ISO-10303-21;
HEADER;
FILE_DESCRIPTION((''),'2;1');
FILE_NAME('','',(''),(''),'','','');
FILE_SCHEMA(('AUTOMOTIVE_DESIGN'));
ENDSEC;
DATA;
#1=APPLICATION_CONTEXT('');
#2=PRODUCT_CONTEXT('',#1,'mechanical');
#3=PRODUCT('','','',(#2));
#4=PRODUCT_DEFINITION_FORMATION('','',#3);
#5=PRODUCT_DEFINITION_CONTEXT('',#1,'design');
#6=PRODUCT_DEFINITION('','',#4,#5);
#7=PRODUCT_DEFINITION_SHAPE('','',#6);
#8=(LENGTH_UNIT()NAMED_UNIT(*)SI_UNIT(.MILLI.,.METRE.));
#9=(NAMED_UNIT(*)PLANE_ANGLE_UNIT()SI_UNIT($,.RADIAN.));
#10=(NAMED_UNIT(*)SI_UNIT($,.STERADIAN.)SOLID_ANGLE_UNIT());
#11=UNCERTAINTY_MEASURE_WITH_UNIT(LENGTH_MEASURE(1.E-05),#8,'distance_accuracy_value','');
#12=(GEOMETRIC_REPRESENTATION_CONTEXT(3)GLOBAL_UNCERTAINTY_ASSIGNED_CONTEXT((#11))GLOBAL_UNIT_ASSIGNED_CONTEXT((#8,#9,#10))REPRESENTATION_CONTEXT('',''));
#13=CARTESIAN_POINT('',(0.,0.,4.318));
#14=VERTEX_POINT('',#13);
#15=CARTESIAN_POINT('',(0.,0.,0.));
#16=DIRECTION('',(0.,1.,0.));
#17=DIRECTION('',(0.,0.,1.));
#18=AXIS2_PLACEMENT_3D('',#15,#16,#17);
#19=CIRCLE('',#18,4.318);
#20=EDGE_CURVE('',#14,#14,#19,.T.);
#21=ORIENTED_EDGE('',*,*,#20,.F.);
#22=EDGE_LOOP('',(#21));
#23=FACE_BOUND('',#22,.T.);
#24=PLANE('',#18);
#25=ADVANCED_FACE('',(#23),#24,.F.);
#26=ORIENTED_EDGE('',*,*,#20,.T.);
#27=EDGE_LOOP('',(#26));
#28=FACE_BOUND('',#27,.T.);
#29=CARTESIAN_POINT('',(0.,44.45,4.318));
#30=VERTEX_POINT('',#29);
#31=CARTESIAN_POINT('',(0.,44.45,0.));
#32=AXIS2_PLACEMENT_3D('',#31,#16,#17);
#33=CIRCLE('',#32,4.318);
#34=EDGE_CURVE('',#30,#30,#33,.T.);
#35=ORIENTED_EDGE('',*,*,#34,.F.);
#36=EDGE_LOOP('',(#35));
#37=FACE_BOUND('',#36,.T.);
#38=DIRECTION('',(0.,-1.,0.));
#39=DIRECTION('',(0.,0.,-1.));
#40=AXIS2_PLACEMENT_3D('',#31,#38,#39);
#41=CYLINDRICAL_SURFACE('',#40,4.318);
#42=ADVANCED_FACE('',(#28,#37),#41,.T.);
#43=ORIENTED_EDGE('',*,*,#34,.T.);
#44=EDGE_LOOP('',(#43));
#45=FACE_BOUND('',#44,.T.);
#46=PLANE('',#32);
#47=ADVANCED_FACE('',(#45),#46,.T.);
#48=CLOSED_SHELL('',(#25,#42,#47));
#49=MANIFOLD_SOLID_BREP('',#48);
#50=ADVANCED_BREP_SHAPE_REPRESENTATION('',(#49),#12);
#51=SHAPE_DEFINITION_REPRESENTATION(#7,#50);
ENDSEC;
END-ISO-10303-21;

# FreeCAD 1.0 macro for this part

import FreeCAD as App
import Part
import Sketcher
from FreeCAD import Vector
Q = App.Units.Quantity

doc = App.newDocument("Part")
body = doc.addObject("PartDesign::Body", "Body")

# Sketch on XZ plane
sketch1 = body.newObject("Sketcher::SketchObject", "Sketch")
sketch1.AttachmentSupport = (doc.getObject("XZ_Plane"), [""])
sketch1.MapMode = "FlatFace"
sketch1.addGeometry(Part.Circle(Vector(0, 0, 0), Vector(0, 0, 1), 4.3), False)
sketch1.addConstraint([
    Sketcher.Constraint("Coincident", 0, 3, -1, 1),
    Sketcher.Constraint("Diameter", 0, Q("0.34 in")),
])
pad1 = body.newObject("PartDesign::Pad", "Pad")
pad1.Profile = sketch1
pad1.Length = Q("1.75 in")
pad1.Reversed = True

doc.recompute()
